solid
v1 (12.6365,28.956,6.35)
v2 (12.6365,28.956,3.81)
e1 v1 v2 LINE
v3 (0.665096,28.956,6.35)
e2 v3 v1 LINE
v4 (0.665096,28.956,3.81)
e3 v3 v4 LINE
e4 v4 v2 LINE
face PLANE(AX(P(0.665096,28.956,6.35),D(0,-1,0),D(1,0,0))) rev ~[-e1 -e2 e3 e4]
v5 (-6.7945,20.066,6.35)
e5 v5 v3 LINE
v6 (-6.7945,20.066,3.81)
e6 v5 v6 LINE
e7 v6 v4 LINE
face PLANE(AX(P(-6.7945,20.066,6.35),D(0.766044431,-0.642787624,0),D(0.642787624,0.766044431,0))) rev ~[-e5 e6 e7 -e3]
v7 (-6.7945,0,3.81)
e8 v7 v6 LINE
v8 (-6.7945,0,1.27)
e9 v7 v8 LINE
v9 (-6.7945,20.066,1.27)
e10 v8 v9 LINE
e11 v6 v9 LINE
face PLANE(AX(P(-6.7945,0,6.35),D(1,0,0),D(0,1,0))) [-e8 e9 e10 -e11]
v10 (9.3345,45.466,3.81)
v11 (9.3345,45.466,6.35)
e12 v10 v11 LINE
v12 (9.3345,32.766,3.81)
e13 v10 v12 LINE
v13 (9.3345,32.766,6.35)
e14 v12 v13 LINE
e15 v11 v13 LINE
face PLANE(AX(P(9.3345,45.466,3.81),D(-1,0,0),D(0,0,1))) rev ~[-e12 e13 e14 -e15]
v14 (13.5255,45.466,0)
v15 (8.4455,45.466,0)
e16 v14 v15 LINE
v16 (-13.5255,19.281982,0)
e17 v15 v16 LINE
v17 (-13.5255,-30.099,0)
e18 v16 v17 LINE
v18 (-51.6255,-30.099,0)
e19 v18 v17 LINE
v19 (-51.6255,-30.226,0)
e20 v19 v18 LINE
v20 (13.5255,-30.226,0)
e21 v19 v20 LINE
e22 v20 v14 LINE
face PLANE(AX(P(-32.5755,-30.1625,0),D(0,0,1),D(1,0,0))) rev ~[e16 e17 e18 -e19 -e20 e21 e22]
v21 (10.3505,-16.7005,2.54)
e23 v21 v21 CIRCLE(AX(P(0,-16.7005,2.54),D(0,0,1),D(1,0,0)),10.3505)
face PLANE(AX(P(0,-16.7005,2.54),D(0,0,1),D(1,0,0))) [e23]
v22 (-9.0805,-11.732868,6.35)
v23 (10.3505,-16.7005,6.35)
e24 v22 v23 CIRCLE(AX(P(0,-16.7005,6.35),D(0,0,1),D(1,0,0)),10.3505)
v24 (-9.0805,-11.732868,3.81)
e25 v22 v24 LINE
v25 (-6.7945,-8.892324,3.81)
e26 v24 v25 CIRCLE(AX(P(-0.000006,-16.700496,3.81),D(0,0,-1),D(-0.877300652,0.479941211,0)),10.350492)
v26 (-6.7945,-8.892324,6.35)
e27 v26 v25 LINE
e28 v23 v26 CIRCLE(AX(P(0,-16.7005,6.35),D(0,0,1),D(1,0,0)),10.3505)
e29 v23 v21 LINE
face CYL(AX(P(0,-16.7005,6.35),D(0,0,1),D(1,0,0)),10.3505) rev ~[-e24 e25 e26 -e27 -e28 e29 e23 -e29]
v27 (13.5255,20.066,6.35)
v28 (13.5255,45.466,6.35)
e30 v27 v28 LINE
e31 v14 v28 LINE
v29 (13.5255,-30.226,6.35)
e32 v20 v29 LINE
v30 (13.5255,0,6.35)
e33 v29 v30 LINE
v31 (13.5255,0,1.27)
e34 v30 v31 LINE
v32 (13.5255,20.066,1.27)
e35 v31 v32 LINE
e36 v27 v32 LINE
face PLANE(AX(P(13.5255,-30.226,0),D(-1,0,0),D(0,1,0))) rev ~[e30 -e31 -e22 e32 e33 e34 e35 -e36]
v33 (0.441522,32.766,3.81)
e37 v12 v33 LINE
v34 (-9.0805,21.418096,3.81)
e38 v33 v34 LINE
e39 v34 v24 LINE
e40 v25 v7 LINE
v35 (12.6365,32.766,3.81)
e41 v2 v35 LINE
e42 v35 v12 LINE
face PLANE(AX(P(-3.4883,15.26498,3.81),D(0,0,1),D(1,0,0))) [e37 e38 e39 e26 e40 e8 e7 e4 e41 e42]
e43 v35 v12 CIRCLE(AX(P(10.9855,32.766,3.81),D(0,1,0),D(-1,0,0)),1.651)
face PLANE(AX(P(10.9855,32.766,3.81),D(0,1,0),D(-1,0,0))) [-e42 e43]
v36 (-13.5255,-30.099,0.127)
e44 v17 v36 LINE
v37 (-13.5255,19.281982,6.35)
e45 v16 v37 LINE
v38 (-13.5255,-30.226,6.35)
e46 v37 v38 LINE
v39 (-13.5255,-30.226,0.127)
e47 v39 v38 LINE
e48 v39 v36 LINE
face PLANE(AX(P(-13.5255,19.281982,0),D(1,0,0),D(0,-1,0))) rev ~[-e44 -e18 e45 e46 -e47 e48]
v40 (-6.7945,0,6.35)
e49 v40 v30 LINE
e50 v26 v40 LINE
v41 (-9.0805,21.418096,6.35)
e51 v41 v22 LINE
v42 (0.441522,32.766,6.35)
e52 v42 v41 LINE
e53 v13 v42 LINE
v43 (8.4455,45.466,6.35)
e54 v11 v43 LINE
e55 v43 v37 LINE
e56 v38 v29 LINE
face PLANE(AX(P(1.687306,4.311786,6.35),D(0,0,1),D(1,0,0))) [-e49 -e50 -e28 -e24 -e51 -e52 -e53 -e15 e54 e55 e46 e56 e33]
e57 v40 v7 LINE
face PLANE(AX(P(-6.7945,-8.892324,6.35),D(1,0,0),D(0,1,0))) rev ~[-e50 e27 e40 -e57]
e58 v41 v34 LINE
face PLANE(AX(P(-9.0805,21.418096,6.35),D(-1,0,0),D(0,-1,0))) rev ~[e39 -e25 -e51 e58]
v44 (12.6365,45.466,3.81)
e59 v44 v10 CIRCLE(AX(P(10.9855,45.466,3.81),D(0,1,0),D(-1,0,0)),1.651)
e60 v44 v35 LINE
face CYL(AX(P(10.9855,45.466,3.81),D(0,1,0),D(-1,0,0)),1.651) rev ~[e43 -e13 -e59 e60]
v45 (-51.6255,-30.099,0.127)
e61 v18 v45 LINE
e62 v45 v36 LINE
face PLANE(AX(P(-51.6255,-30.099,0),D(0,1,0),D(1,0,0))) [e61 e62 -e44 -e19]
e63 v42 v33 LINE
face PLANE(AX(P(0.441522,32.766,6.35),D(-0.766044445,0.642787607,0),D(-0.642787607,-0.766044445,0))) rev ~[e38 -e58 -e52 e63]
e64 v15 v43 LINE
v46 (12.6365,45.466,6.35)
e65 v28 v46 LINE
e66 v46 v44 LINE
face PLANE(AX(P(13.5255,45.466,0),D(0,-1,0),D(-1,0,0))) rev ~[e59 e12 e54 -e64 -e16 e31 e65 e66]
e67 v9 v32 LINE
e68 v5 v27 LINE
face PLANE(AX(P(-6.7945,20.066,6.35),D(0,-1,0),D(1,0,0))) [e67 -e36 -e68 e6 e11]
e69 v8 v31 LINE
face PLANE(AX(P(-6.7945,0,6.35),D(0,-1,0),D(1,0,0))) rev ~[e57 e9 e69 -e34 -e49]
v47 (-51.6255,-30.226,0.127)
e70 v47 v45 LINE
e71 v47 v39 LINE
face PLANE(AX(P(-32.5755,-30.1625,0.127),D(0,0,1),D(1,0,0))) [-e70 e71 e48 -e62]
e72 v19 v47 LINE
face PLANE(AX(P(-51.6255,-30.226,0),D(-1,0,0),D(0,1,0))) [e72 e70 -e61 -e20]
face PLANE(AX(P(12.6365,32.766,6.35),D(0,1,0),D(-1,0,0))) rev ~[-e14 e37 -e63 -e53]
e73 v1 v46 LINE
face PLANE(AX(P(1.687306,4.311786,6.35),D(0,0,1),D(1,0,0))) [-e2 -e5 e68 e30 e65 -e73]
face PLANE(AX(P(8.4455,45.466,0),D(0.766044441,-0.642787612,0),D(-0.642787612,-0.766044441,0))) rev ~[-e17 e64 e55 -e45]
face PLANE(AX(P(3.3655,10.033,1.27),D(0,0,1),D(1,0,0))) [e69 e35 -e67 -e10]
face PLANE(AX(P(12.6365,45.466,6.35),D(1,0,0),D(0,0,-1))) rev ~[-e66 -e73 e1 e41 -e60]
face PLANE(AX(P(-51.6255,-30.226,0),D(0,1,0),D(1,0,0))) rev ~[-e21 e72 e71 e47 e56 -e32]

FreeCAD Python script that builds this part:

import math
import FreeCAD as App
import Part
import Sketcher

V = App.Vector
Q = App.Units.Quantity

doc = App.newDocument("Part")
params = doc.addObject("Spreadsheet::Sheet", "Params")
for row, (alias, value) in enumerate([
    ("sketch1_width", "0.2 in"),
    ("sketch1_height", "2.98 in"),
    ("sketch1_width2", "1.065 in"),
    ("pad1_length", "0.25 in"),
    ("sketch2_diameter", "0.815 in"),
    ("pocket1_length", "0.15 in"),
    ("sketch3_width", "0.8 in"),
    ("sketch3_height", "0.79 in"),
    ("pocket2_length", "0.2 in"),
    ("sketch4_height", "0.1 in"),
    ("sketch4_radius", "0.065 in"),
    ("pocket3_length", "0.5 in"),
    ("sketch5_height", "0.15 in"),
    ("pocket4_length", "0.1 in"),
    ("sketch6_width", "1.5 in"),
    ("sketch6_height", "0.005 in"),
    ("pad2_length", "0.005 in"),
], start=1):
    params.set(f"A{row}", alias)
    params.set(f"B{row}", "=" + value)
    params.setAlias(f"B{row}", alias)

body = doc.addObject("PartDesign::Body", "Body")

# Sketch on XY plane
sketch1 = body.newObject("Sketcher::SketchObject", "Sketch")
sketch1.AttachmentSupport = (doc.getObject("XY_Plane"), [""])
sketch1.MapMode = "FlatFace"
sketch1.addGeometry(Part.LineSegment(V(8, 45, 0), V(-14, 19, 0)), False)
sketch1.addGeometry(Part.LineSegment(V(-14, 19, 0), V(-14, -30, 0)), False)
sketch1.addGeometry(Part.LineSegment(V(-14, -30, 0), V(14, -30, 0)), False)
sketch1.addGeometry(Part.LineSegment(V(14, -30, 0), V(14, 45, 0)), False)
sketch1.addGeometry(Part.LineSegment(V(14, 45, 0), V(8, 45, 0)), False)
sketch1.addConstraint(Sketcher.Constraint("Coincident", 0, 2, 1, 1))
sketch1.addConstraint(Sketcher.Constraint("Coincident", 1, 2, 2, 1))
sketch1.addConstraint(Sketcher.Constraint("Coincident", 2, 2, 3, 1))
sketch1.addConstraint(Sketcher.Constraint("Coincident", 3, 2, 4, 1))
sketch1.addConstraint(Sketcher.Constraint("Coincident", 4, 2, 0, 1))
sketch1.addConstraint(Sketcher.Constraint("Vertical", 1))
sketch1.addConstraint(Sketcher.Constraint("Horizontal", 2))
sketch1.addConstraint(Sketcher.Constraint("Vertical", 3))
sketch1.addConstraint(Sketcher.Constraint("Horizontal", 4))
sketch1.addConstraint(Sketcher.Constraint("DistanceX", 4, 2, 4, 1, Q("0.2 in")))
sketch1.addConstraint(Sketcher.Constraint("Angle", 0, Q("-130 deg")))
sketch1.addConstraint(Sketcher.Constraint("DistanceY", 3, 1, 3, 2, Q("2.98 in")))
sketch1.addConstraint(Sketcher.Constraint("DistanceX", 2, 1, 2, 2, Q("1.065 in")))
sketch1.addConstraint(Sketcher.Constraint("DistanceY", 1, 2, -1, 1, Q("1.19 in")))
sketch1.addConstraint(Sketcher.Constraint("DistanceX", 0, 2, -1, 1, Q("0.5325 in")))
sketch1.setExpression("Constraints[9]", "Params.sketch1_width")
sketch1.setExpression("Constraints[11]", "Params.sketch1_height")
sketch1.setExpression("Constraints[12]", "Params.sketch1_width2")
pad1 = body.newObject("PartDesign::Pad", "Pad")
pad1.Profile = sketch1
pad1.setExpression("Length", "Params.pad1_length")

# Sketch on XY plane
sketch2 = body.newObject("Sketcher::SketchObject", "Sketch001")
sketch2.AttachmentSupport = (doc.getObject("XY_Plane"), [""])
sketch2.MapMode = "FlatFace"
sketch2.AttachmentOffset = App.Placement(V(0, 0, 0.25 * 25.4), App.Rotation())
sketch2.addGeometry(Part.Circle(V(0, -17, 0), V(0, 0, 1), 10), False)
sketch2.addConstraint(Sketcher.Constraint("PointOnObject", 0, 3, -2))
sketch2.addConstraint(Sketcher.Constraint("Diameter", 0, Q("0.815 in")))
sketch2.addConstraint(Sketcher.Constraint("DistanceY", 0, 3, -1, 1, Q("0.6575 in")))
sketch2.setExpression("Constraints[1]", "Params.sketch2_diameter")
pocket1 = body.newObject("PartDesign::Pocket", "Pocket")
pocket1.Profile = sketch2
pocket1.setExpression("Length", "Params.pocket1_length")

# Sketch on XY plane
sketch3 = body.newObject("Sketcher::SketchObject", "Sketch002")
sketch3.AttachmentSupport = (doc.getObject("XY_Plane"), [""])
sketch3.MapMode = "FlatFace"
sketch3.AttachmentOffset = App.Placement(V(0, 0, 0.25 * 25.4), App.Rotation())
sketch3.addGeometry(Part.LineSegment(V(-7, 20, 0), V(-7, 0, 0)), False)
sketch3.addGeometry(Part.LineSegment(V(-7, 0, 0), V(14, 0, 0)), False)
sketch3.addGeometry(Part.LineSegment(V(14, 0, 0), V(14, 20, 0)), False)
sketch3.addGeometry(Part.LineSegment(V(14, 20, 0), V(-7, 20, 0)), False)
sketch3.addConstraint(Sketcher.Constraint("Coincident", 0, 2, 1, 1))
sketch3.addConstraint(Sketcher.Constraint("Coincident", 1, 2, 2, 1))
sketch3.addConstraint(Sketcher.Constraint("Coincident", 2, 2, 3, 1))
sketch3.addConstraint(Sketcher.Constraint("Coincident", 3, 2, 0, 1))
sketch3.addConstraint(Sketcher.Constraint("Vertical", 0))
sketch3.addConstraint(Sketcher.Constraint("Horizontal", 1))
sketch3.addConstraint(Sketcher.Constraint("Vertical", 2))
sketch3.addConstraint(Sketcher.Constraint("Horizontal", 3))
sketch3.addConstraint(Sketcher.Constraint("PointOnObject", 0, 2, -1))
sketch3.addConstraint(Sketcher.Constraint("DistanceX", 1, 1, 1, 2, Q("0.8 in")))
sketch3.addConstraint(Sketcher.Constraint("DistanceY", 0, 2, 0, 1, Q("0.79 in")))
sketch3.addConstraint(Sketcher.Constraint("DistanceX", 0, 2, -1, 1, Q("0.2675 in")))
sketch3.setExpression("Constraints[9]", "Params.sketch3_width")
sketch3.setExpression("Constraints[10]", "Params.sketch3_height")
pocket2 = body.newObject("PartDesign::Pocket", "Pocket001")
pocket2.Profile = sketch3
pocket2.setExpression("Length", "Params.pocket2_length")

# Sketch on XZ plane
sketch4 = body.newObject("Sketcher::SketchObject", "Sketch003")
sketch4.AttachmentSupport = (doc.getObject("XZ_Plane"), [""])
sketch4.MapMode = "FlatFace"
sketch4.AttachmentOffset = App.Placement(V(0, 0, -1.79 * 25.4), App.Rotation())
sketch4.addGeometry(Part.ArcOfCircle(Part.Circle(V(11, 3.8, 0), V(0, 0, 1), 1.7), math.radians(180), math.radians(360)), False)
sketch4.addGeometry(Part.LineSegment(V(9.3, 3.8, 0), V(9.3, 6.3, 0)), False)
sketch4.addGeometry(Part.LineSegment(V(9.3, 6.3, 0), V(12.6, 6.3, 0)), False)
sketch4.addGeometry(Part.LineSegment(V(12.6, 6.3, 0), V(12.6, 3.8, 0)), False)
sketch4.addConstraint(Sketcher.Constraint("Tangent", 0, 1, 1, 1))
sketch4.addConstraint(Sketcher.Constraint("Coincident", 1, 2, 2, 1))
sketch4.addConstraint(Sketcher.Constraint("Coincident", 2, 2, 3, 1))
sketch4.addConstraint(Sketcher.Constraint("Tangent", 3, 2, 0, 2))
sketch4.addConstraint(Sketcher.Constraint("Vertical", 1))
sketch4.addConstraint(Sketcher.Constraint("Horizontal", 2))
sketch4.addConstraint(Sketcher.Constraint("Vertical", 3))
sketch4.addConstraint(Sketcher.Constraint("DistanceY", 1, 1, 1, 2, Q("0.1 in")))
sketch4.addConstraint(Sketcher.Constraint("Radius", 0, Q("0.065 in")))
sketch4.addConstraint(Sketcher.Constraint("DistanceY", -1, 1, 0, 3, Q("0.15 in")))
sketch4.addConstraint(Sketcher.Constraint("DistanceX", -1, 1, 0, 3, Q("0.4325 in")))
sketch4.setExpression("Constraints[7]", "Params.sketch4_height")
sketch4.setExpression("Constraints[8]", "Params.sketch4_radius")
pocket3 = body.newObject("PartDesign::Pocket", "Pocket002")
pocket3.Profile = sketch4
pocket3.setExpression("Length", "Params.pocket3_length")
pocket3.Reversed = True

# Sketch on XY plane
sketch5 = body.newObject("Sketcher::SketchObject", "Sketch004")
sketch5.AttachmentSupport = (doc.getObject("XY_Plane"), [""])
sketch5.MapMode = "FlatFace"
sketch5.AttachmentOffset = App.Placement(V(0, 0, 0.25 * 25.4), App.Rotation())
sketch5.addGeometry(Part.LineSegment(V(12.6, 29, 0), V(12.6, 32.8, 0)), False)
sketch5.addGeometry(Part.LineSegment(V(12.6, 32.8, 0), V(0.4, 32.8, 0)), False)
sketch5.addGeometry(Part.LineSegment(V(0.4, 32.8, 0), V(-9.1, 21.4, 0)), False)
sketch5.addGeometry(Part.LineSegment(V(-9.1, 21.4, 0), V(-9.1, -11.7, 0)), False)
sketch5.addGeometry(Part.ArcOfCircle(Part.Circle(V(0, -16.7, 0), V(0, 0, 1), 10.4), math.radians(131), math.radians(151)), False)
sketch5.addGeometry(Part.LineSegment(V(-6.8, -8.9, 0), V(-6.8, 20.1, 0)), False)
sketch5.addGeometry(Part.LineSegment(V(-6.8, 20.1, 0), V(0.7, 29, 0)), False)
sketch5.addGeometry(Part.LineSegment(V(0.7, 29, 0), V(12.6, 29, 0)), False)
sketch5.addConstraint(Sketcher.Constraint("Coincident", 0, 2, 1, 1))
sketch5.addConstraint(Sketcher.Constraint("Coincident", 1, 2, 2, 1))
sketch5.addConstraint(Sketcher.Constraint("Coincident", 2, 2, 3, 1))
sketch5.addConstraint(Sketcher.Constraint("Coincident", 3, 2, 4, 2))
sketch5.addConstraint(Sketcher.Constraint("Coincident", 4, 1, 5, 1))
sketch5.addConstraint(Sketcher.Constraint("Coincident", 5, 2, 6, 1))
sketch5.addConstraint(Sketcher.Constraint("Coincident", 6, 2, 7, 1))
sketch5.addConstraint(Sketcher.Constraint("Coincident", 7, 2, 0, 1))
sketch5.addConstraint(Sketcher.Constraint("Vertical", 0))
sketch5.addConstraint(Sketcher.Constraint("Horizontal", 1))
sketch5.addConstraint(Sketcher.Constraint("Vertical", 3))
sketch5.addConstraint(Sketcher.Constraint("Vertical", 5))
sketch5.addConstraint(Sketcher.Constraint("Horizontal", 7))
sketch5.addConstraint(Sketcher.Constraint("Parallel", 2, 6))
sketch5.addConstraint(Sketcher.Constraint("Angle", 2, Q("-130 deg")))
sketch5.addConstraint(Sketcher.Constraint("DistanceY", 0, 1, 0, 2, Q("0.15 in")))
sketch5.addConstraint(Sketcher.Constraint("DistanceY", 5, 2, 1, 2, Q("0.5 in")))
sketch5.addConstraint(Sketcher.Constraint("DistanceY", -1, 1, 0, 2, Q("1.29 in")))
sketch5.addConstraint(Sketcher.Constraint("DistanceX", 3, 2, 4, 1, Q("0.09 in")))
sketch5.addConstraint(Sketcher.Constraint("DistanceX", 2, 2, 0, 2, Q("0.855 in")))
sketch5.addConstraint(Sketcher.Constraint("DistanceY", 4, 3, -1, 1, Q("0.6574998 in")))
sketch5.addConstraint(Sketcher.Constraint("DistanceX", -1, 1, 0, 2, Q("0.4975 in")))
sketch5.addConstraint(Sketcher.Constraint("Radius", 4, Q("10.350492 mm")))
sketch5.addConstraint(Sketcher.Constraint("DistanceX", 1, 2, 1, 1, Q("12.194978 mm")))
sketch5.addConstraint(Sketcher.Constraint("DistanceY", 3, 2, 3, 1, Q("33.150964 mm")))
sketch5.setExpression("Constraints[15]", "Params.sketch5_height")
pocket4 = body.newObject("PartDesign::Pocket", "Pocket003")
pocket4.Profile = sketch5
pocket4.setExpression("Length", "Params.pocket4_length")

# Sketch on XY plane
sketch6 = body.newObject("Sketcher::SketchObject", "Sketch005")
sketch6.AttachmentSupport = (doc.getObject("XY_Plane"), [""])
sketch6.MapMode = "FlatFace"
sketch6.addGeometry(Part.LineSegment(V(-51.63, -30.1, 0), V(-51.63, -30.23, 0)), False)
sketch6.addGeometry(Part.LineSegment(V(-51.63, -30.23, 0), V(-13.53, -30.23, 0)), False)
sketch6.addGeometry(Part.LineSegment(V(-13.53, -30.23, 0), V(-13.53, -30.1, 0)), False)
sketch6.addGeometry(Part.LineSegment(V(-13.53, -30.1, 0), V(-51.63, -30.1, 0)), False)
sketch6.addConstraint(Sketcher.Constraint("Coincident", 0, 2, 1, 1))
sketch6.addConstraint(Sketcher.Constraint("Coincident", 1, 2, 2, 1))
sketch6.addConstraint(Sketcher.Constraint("Coincident", 2, 2, 3, 1))
sketch6.addConstraint(Sketcher.Constraint("Coincident", 3, 2, 0, 1))
sketch6.addConstraint(Sketcher.Constraint("Vertical", 0))
sketch6.addConstraint(Sketcher.Constraint("Horizontal", 1))
sketch6.addConstraint(Sketcher.Constraint("Vertical", 2))
sketch6.addConstraint(Sketcher.Constraint("Horizontal", 3))
sketch6.addConstraint(Sketcher.Constraint("DistanceX", 1, 1, 1, 2, Q("1.5 in")))
sketch6.addConstraint(Sketcher.Constraint("DistanceY", 0, 2, 0, 1, Q("0.005 in")))
sketch6.addConstraint(Sketcher.Constraint("DistanceY", 0, 2, -1, 1, Q("1.19 in")))
sketch6.addConstraint(Sketcher.Constraint("DistanceX", 0, 2, -1, 1, Q("2.0325 in")))
sketch6.setExpression("Constraints[8]", "Params.sketch6_width")
sketch6.setExpression("Constraints[9]", "Params.sketch6_height")
pad2 = body.newObject("PartDesign::Pad", "Pad001")
pad2.Profile = sketch6
pad2.setExpression("Length", "Params.pad2_length")

doc.recompute()
